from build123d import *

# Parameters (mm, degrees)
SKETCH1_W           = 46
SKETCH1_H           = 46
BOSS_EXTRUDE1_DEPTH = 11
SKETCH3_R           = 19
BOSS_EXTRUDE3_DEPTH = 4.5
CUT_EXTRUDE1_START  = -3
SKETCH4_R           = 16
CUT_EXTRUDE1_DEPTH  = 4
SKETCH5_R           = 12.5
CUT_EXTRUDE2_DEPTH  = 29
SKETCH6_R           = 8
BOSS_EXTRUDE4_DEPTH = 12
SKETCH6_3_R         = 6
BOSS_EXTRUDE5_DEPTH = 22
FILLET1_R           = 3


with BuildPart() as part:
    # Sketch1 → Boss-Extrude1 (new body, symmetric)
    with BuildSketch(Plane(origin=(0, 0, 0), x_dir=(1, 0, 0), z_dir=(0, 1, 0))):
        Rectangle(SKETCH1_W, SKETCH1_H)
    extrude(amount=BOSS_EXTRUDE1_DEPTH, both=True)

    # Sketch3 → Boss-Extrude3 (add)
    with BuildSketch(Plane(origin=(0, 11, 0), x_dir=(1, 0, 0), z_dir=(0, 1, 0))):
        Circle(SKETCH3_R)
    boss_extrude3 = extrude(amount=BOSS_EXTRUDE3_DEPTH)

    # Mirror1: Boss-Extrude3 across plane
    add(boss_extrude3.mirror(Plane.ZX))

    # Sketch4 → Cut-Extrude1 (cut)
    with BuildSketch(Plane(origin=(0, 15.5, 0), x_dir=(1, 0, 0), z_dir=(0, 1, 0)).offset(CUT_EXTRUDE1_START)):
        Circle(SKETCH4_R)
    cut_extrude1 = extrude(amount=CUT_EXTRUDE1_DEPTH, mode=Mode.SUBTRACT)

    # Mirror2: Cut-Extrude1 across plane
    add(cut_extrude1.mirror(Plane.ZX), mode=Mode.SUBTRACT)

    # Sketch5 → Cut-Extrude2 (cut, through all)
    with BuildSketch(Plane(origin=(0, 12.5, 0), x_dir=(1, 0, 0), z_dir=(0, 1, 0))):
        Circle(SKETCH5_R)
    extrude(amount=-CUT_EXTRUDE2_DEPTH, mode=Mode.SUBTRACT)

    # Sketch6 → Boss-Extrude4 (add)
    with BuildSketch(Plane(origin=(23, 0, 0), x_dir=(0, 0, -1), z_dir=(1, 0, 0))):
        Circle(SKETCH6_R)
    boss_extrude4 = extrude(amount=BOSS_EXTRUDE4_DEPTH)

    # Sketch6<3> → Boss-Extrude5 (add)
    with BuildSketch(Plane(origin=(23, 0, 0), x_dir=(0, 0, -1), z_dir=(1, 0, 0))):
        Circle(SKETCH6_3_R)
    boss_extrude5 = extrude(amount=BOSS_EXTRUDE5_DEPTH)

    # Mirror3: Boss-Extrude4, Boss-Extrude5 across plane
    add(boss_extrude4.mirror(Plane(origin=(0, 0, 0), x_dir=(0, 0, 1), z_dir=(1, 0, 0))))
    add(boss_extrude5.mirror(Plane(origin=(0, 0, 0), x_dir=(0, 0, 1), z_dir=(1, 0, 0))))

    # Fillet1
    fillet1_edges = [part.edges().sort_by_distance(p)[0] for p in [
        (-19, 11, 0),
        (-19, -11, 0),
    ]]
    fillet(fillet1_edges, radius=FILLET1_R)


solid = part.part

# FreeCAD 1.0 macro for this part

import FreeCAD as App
import Part
import Sketcher

V = App.Vector
Q = App.Units.Quantity


def edges_at(feature, points):
    """Names of the edges that pass closest to the given points."""
    edges = feature.Shape.Edges
    near = lambda p: min(range(len(edges)), key=lambda i: edges[i].distToShape(Part.Vertex(*p))[0])
    return sorted({f"Edge{near(p) + 1}" for p in points})


def add_polygon(sketch, points):
    """Adds a closed chain of lines whose ends are joined by coincident constraints."""
    first, n = sketch.GeometryCount, len(points)
    for a, b in zip(points, points[1:] + points[:1]):
        sketch.addGeometry(Part.LineSegment(App.Vector(*a, 0), App.Vector(*b, 0)), False)
    for i in range(n):
        sketch.addConstraint(Sketcher.Constraint("Coincident", first + i, 2, first + (i + 1) % n, 1))

doc = App.newDocument("Part")
body = doc.addObject("PartDesign::Body", "Body")

sketch1 = body.newObject("Sketcher::SketchObject", "Sketch")
sketch1.AttachmentSupport = (doc.getObject("XZ_Plane"), [""])
sketch1.MapMode = "FlatFace"
add_polygon(sketch1, [(-23, -23), (-23, 23), (23, 23), (23, -23)])
sketch1.addConstraint([
    Sketcher.Constraint("Vertical", 0),
    Sketcher.Constraint("Horizontal", 1),
    Sketcher.Constraint("Vertical", 2),
    Sketcher.Constraint("Horizontal", 3),
    Sketcher.Constraint("Symmetric", 0, 2, 2, 2, -1, 1),
    Sketcher.Constraint("Equal", 3, 0),
    Sketcher.Constraint("DistanceX", 1, 1, 1, 2, Q("46 mm")),
])
pad1 = body.newObject("PartDesign::Pad", "Pad")
pad1.Profile = sketch1
pad1.Length = 22
pad1.Midplane = True

sketch2 = body.newObject("Sketcher::SketchObject", "Sketch001")
sketch2.AttachmentSupport = (doc.getObject("XZ_Plane"), [""])
sketch2.MapMode = "FlatFace"
sketch2.AttachmentOffset = App.Placement(V(0, 0, -11), App.Rotation())
sketch2.addGeometry(Part.Circle(V(0, 0, 0), V(0, 0, 1), 19), False)
sketch2.addConstraint([
    Sketcher.Constraint("Coincident", 0, 3, -1, 1),
    Sketcher.Constraint("Diameter", 0, Q("38 mm")),
])
pad2 = body.newObject("PartDesign::Pad", "Pad001")
pad2.Profile = sketch2
pad2.Length = 4.5
pad2.Reversed = True
doc.recompute()

mirrored = body.newObject("PartDesign::Mirrored", "Mirrored")
mirrored.Originals = [pad2]
mirrored.MirrorPlane = (doc.getObject("XZ_Plane"), [""])
body.Tip = mirrored

sketch3 = body.newObject("Sketcher::SketchObject", "Sketch002")
sketch3.AttachmentSupport = (doc.getObject("XZ_Plane"), [""])
sketch3.MapMode = "FlatFace"
sketch3.AttachmentOffset = App.Placement(V(0, 0, -12.5), App.Rotation())
sketch3.addGeometry(Part.Circle(V(0, 0, 0), V(0, 0, 1), 16), False)
sketch3.addConstraint([
    Sketcher.Constraint("Coincident", 0, 3, -1, 1),
    Sketcher.Constraint("Diameter", 0, Q("32 mm")),
])
pocket1 = body.newObject("PartDesign::Pocket", "Pocket")
pocket1.Profile = sketch3
pocket1.Length = 4
doc.recompute()

mirrored2 = body.newObject("PartDesign::Mirrored", "Mirrored001")
mirrored2.Originals = [pocket1]
mirrored2.MirrorPlane = (doc.getObject("XZ_Plane"), [""])
body.Tip = mirrored2

sketch4 = body.newObject("Sketcher::SketchObject", "Sketch003")
sketch4.AttachmentSupport = (doc.getObject("XZ_Plane"), [""])
sketch4.MapMode = "FlatFace"
sketch4.AttachmentOffset = App.Placement(V(0, 0, -12.5), App.Rotation())
sketch4.addGeometry(Part.Circle(V(0, 0, 0), V(0, 0, 1), 12.5), False)
sketch4.addConstraint([
    Sketcher.Constraint("Coincident", 0, 3, -1, 1),
    Sketcher.Constraint("Diameter", 0, Q("25 mm")),
])
pocket2 = body.newObject("PartDesign::Pocket", "Pocket001")
pocket2.Profile = sketch4
pocket2.Type = "ThroughAll"
pocket2.Reversed = True

sketch5 = body.newObject("Sketcher::SketchObject", "Sketch004")
sketch5.AttachmentSupport = (doc.getObject("YZ_Plane"), [""])
sketch5.MapMode = "FlatFace"
sketch5.AttachmentOffset = App.Placement(V(0, 0, 23), App.Rotation())
sketch5.addGeometry(Part.Circle(V(0, 0, 0), V(0, 0, 1), 8), False)
sketch5.addConstraint([
    Sketcher.Constraint("Coincident", 0, 3, -1, 1),
    Sketcher.Constraint("Diameter", 0, Q("16 mm")),
])
pad3 = body.newObject("PartDesign::Pad", "Pad002")
pad3.Profile = sketch5
pad3.Length = 12

sketch6 = body.newObject("Sketcher::SketchObject", "Sketch005")
sketch6.AttachmentSupport = (doc.getObject("YZ_Plane"), [""])
sketch6.MapMode = "FlatFace"
sketch6.AttachmentOffset = App.Placement(V(0, 0, 23), App.Rotation())
sketch6.addGeometry(Part.Circle(V(0, 0, 0), V(0, 0, 1), 6), False)
sketch6.addConstraint([
    Sketcher.Constraint("Coincident", 0, 3, -1, 1),
    Sketcher.Constraint("Diameter", 0, Q("12 mm")),
])
pad4 = body.newObject("PartDesign::Pad", "Pad003")
pad4.Profile = sketch6
pad4.Length = 22
doc.recompute()

mirrored3 = body.newObject("PartDesign::Mirrored", "Mirrored002")
mirrored3.Originals = [pad3, pad4]
mirrored3.MirrorPlane = (doc.getObject("YZ_Plane"), [""])
body.Tip = mirrored3
doc.recompute()

fillet = body.newObject("PartDesign::Fillet", "Fillet")
fillet.Base = (mirrored3, edges_at(mirrored3, [(-19, 11, 0), (-19, -11, 0)]))
fillet.Radius = 3

doc.recompute()
